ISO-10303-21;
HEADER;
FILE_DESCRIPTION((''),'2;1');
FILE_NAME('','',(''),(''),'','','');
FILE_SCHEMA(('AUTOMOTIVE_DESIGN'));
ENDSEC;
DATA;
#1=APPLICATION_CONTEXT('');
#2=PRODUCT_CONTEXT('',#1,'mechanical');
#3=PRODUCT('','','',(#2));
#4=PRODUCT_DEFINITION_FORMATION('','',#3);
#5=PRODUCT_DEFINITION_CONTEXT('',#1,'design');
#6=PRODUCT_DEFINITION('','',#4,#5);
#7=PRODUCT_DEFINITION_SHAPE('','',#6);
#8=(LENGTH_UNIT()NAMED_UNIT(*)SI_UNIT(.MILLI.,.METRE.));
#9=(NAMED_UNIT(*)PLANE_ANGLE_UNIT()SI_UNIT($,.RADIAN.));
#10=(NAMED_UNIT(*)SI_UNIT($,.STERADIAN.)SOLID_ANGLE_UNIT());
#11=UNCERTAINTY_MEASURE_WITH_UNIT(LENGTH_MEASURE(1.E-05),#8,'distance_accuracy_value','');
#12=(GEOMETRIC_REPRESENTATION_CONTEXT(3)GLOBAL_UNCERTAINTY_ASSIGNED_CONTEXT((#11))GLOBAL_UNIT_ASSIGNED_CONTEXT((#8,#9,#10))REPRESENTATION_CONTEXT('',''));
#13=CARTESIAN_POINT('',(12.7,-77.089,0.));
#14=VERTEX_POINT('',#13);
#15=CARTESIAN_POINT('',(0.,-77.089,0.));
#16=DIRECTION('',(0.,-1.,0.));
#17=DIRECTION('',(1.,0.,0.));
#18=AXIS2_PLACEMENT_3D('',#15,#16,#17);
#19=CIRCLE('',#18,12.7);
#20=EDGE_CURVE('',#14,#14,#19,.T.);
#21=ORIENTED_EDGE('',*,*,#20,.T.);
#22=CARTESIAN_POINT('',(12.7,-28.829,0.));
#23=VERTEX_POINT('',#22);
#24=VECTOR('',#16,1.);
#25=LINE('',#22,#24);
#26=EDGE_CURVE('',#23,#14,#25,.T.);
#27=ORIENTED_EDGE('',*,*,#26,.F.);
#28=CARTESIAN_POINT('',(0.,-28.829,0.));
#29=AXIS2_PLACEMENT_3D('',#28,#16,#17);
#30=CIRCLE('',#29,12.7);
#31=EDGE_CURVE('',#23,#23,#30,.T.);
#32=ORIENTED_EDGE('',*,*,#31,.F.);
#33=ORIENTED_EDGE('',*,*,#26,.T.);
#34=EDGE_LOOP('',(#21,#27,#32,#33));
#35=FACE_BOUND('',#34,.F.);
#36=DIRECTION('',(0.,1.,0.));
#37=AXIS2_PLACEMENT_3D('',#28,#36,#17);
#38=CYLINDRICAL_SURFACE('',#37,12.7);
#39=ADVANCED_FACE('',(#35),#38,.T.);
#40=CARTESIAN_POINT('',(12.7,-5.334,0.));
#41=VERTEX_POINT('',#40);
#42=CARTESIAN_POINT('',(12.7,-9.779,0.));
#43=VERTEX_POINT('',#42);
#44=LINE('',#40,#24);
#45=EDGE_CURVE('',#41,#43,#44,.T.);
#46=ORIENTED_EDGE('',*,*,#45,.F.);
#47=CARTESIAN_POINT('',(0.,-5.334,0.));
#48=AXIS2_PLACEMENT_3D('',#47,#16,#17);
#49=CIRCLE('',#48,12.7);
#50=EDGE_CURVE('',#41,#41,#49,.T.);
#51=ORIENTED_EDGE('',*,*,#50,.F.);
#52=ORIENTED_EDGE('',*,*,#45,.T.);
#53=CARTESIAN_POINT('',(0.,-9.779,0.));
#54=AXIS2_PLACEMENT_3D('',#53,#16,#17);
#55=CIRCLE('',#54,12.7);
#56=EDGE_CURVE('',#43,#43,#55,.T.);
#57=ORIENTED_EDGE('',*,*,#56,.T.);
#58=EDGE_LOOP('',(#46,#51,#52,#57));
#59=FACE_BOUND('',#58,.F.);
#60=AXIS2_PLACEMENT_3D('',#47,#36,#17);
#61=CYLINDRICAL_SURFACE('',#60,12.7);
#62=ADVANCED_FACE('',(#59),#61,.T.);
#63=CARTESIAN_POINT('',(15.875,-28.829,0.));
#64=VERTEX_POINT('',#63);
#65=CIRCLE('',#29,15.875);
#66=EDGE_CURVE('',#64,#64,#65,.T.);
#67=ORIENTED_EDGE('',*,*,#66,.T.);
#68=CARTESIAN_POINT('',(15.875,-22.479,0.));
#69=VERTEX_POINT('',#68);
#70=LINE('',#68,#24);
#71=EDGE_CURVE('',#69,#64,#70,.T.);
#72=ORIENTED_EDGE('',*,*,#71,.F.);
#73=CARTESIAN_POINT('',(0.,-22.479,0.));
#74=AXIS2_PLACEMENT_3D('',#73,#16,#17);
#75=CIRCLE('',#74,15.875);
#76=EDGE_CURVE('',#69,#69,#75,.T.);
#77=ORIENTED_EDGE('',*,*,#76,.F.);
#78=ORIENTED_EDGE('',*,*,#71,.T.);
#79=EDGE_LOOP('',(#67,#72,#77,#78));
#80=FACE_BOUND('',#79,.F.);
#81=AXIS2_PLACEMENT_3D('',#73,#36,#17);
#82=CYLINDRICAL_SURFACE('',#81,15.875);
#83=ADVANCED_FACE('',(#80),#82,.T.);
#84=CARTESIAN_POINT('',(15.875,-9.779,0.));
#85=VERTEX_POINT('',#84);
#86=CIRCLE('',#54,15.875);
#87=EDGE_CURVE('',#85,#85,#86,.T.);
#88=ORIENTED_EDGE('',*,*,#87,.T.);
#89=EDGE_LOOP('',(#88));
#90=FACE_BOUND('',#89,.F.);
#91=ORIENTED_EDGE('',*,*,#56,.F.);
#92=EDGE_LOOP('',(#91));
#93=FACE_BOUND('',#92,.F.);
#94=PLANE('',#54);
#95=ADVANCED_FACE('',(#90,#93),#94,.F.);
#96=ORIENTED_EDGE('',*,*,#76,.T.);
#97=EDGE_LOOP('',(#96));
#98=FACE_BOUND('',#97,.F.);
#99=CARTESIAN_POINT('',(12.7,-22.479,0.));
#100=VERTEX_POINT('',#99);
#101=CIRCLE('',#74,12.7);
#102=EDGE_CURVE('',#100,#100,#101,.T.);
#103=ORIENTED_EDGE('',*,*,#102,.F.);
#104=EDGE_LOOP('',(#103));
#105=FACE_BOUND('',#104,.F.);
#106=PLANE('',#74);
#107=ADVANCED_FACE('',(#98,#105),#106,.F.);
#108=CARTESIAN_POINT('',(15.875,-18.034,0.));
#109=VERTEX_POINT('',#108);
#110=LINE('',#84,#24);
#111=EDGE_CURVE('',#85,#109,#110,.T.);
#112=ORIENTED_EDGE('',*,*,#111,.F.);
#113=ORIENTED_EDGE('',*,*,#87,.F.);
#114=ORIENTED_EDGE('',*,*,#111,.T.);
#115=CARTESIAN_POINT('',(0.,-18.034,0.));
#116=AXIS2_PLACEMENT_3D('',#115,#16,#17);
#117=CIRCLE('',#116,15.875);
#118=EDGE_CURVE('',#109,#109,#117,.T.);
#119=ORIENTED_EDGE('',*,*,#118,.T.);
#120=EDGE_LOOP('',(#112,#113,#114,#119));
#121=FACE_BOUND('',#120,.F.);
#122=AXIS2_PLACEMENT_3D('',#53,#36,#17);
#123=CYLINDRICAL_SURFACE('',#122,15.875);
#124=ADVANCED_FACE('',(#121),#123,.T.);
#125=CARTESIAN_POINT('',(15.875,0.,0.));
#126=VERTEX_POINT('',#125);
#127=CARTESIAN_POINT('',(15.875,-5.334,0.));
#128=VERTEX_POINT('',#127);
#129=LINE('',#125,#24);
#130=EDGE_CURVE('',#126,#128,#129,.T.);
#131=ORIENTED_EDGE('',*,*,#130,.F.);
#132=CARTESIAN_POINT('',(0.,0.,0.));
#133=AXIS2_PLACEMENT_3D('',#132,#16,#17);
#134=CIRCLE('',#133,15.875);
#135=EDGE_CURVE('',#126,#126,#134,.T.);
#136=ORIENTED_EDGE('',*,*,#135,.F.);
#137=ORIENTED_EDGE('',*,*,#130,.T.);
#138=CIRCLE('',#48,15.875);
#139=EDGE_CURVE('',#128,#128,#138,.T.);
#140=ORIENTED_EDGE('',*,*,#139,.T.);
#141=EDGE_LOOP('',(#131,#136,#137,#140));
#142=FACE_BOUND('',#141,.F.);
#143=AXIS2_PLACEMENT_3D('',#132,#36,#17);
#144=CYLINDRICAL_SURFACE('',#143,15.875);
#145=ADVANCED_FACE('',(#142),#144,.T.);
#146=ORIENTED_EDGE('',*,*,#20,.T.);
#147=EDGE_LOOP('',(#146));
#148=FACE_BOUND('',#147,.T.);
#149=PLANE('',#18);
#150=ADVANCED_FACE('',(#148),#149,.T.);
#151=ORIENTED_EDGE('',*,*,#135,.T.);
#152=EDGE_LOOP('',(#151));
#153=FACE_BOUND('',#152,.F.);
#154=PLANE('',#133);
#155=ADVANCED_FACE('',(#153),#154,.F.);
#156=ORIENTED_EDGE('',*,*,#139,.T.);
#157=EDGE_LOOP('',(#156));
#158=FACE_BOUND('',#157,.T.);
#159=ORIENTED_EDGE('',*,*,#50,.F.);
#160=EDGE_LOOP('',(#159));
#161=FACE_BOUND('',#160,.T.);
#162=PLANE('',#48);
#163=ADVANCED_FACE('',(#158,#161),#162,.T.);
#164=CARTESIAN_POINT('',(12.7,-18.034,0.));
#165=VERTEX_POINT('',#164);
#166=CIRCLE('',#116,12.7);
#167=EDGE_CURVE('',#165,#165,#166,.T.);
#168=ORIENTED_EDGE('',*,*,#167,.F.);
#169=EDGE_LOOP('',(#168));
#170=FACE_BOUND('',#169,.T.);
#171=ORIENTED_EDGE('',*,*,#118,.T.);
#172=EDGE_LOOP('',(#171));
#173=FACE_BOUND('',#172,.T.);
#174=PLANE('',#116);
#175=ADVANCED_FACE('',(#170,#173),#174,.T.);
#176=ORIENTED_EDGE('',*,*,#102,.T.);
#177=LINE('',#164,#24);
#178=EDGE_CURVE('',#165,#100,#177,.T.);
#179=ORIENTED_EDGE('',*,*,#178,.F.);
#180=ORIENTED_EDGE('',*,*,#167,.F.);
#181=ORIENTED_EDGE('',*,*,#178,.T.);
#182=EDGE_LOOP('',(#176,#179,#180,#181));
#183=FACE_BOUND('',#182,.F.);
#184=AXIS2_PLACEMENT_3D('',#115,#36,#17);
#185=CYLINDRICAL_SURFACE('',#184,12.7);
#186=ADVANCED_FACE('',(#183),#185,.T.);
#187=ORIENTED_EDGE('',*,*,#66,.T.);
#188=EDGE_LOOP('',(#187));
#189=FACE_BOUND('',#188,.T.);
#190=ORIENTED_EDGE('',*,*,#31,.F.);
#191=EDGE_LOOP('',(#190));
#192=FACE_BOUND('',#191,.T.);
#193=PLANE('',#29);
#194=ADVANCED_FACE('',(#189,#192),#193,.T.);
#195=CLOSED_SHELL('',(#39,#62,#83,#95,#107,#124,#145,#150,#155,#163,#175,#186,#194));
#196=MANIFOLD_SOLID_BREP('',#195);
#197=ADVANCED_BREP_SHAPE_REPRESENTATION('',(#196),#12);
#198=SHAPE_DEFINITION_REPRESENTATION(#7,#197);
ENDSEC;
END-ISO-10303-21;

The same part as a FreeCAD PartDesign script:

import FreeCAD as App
import Part
import Sketcher

V = App.Vector
Q = App.Units.Quantity

doc = App.newDocument("Part")
body = doc.addObject("PartDesign::Body", "Body")

# Sketch on XZ plane
sketch1 = body.newObject("Sketcher::SketchObject", "Sketch")
sketch1.AttachmentSupport = (doc.getObject("XZ_Plane"), [""])
sketch1.MapMode = "FlatFace"
sketch1.addGeometry(Part.Circle(V(0, 0, 0), V(0, 0, 1), 15.875), False)
sketch1.addConstraint([
    Sketcher.Constraint("Coincident", 0, 3, -1, 1),
    Sketcher.Constraint("Diameter", 0, Q("1.25 in")),
])
pad1 = body.newObject("PartDesign::Pad", "Pad")
pad1.Profile = sketch1
pad1.Length = Q("0.21 in")

# Sketch on XZ plane
sketch2 = body.newObject("Sketcher::SketchObject", "Sketch001")
sketch2.AttachmentSupport = (doc.getObject("XZ_Plane"), [""])
sketch2.MapMode = "FlatFace"
sketch2.AttachmentOffset = App.Placement(V(0, 0, 0.21 * 25.4), App.Rotation())
sketch2.addGeometry(Part.Circle(V(0, 0, 0), V(0, 0, 1), 12.7), False)
sketch2.addConstraint([
    Sketcher.Constraint("Coincident", 0, 3, -1, 1),
    Sketcher.Constraint("Diameter", 0, Q("1 in")),
])
pad2 = body.newObject("PartDesign::Pad", "Pad001")
pad2.Profile = sketch2
pad2.Length = Q("0.175 in")

# Sketch on XZ plane
sketch3 = body.newObject("Sketcher::SketchObject", "Sketch002")
sketch3.AttachmentSupport = (doc.getObject("XZ_Plane"), [""])
sketch3.MapMode = "FlatFace"
sketch3.AttachmentOffset = App.Placement(V(0, 0, 0.385 * 25.4), App.Rotation())
sketch3.addGeometry(Part.Circle(V(0, 0, 0), V(0, 0, 1), 15.875), False)
sketch3.addConstraint([
    Sketcher.Constraint("Coincident", 0, 3, -1, 1),
    Sketcher.Constraint("Diameter", 0, Q("1.25 in")),
])
pad3 = body.newObject("PartDesign::Pad", "Pad002")
pad3.Profile = sketch3
pad3.Length = Q("0.325 in")

# Sketch on XZ plane
sketch4 = body.newObject("Sketcher::SketchObject", "Sketch003")
sketch4.AttachmentSupport = (doc.getObject("XZ_Plane"), [""])
sketch4.MapMode = "FlatFace"
sketch4.AttachmentOffset = App.Placement(V(0, 0, 0.71 * 25.4), App.Rotation())
sketch4.addGeometry(Part.Circle(V(0, 0, 0), V(0, 0, 1), 12.7), False)
sketch4.addConstraint([
    Sketcher.Constraint("Coincident", 0, 3, -1, 1),
    Sketcher.Constraint("Diameter", 0, Q("1 in")),
])
pad4 = body.newObject("PartDesign::Pad", "Pad003")
pad4.Profile = sketch4
pad4.Length = Q("0.175 in")

# Sketch on XZ plane
sketch5 = body.newObject("Sketcher::SketchObject", "Sketch004")
sketch5.AttachmentSupport = (doc.getObject("XZ_Plane"), [""])
sketch5.MapMode = "FlatFace"
sketch5.AttachmentOffset = App.Placement(V(0, 0, 0.885 * 25.4), App.Rotation())
sketch5.addGeometry(Part.Circle(V(0, 0, 0), V(0, 0, 1), 15.875), False)
sketch5.addConstraint([
    Sketcher.Constraint("Coincident", 0, 3, -1, 1),
    Sketcher.Constraint("Diameter", 0, Q("1.25 in")),
])
pad5 = body.newObject("PartDesign::Pad", "Pad004")
pad5.Profile = sketch5
pad5.Length = Q("0.25 in")

# Sketch on XZ plane
sketch6 = body.newObject("Sketcher::SketchObject", "Sketch005")
sketch6.AttachmentSupport = (doc.getObject("XZ_Plane"), [""])
sketch6.MapMode = "FlatFace"
sketch6.AttachmentOffset = App.Placement(V(0, 0, 1.135 * 25.4), App.Rotation())
sketch6.addGeometry(Part.Circle(V(0, 0, 0), V(0, 0, 1), 12.7), False)
sketch6.addConstraint([
    Sketcher.Constraint("Coincident", 0, 3, -1, 1),
    Sketcher.Constraint("Diameter", 0, Q("1 in")),
])
pad6 = body.newObject("PartDesign::Pad", "Pad005")
pad6.Profile = sketch6
pad6.Length = Q("1.9 in")

doc.recompute()
